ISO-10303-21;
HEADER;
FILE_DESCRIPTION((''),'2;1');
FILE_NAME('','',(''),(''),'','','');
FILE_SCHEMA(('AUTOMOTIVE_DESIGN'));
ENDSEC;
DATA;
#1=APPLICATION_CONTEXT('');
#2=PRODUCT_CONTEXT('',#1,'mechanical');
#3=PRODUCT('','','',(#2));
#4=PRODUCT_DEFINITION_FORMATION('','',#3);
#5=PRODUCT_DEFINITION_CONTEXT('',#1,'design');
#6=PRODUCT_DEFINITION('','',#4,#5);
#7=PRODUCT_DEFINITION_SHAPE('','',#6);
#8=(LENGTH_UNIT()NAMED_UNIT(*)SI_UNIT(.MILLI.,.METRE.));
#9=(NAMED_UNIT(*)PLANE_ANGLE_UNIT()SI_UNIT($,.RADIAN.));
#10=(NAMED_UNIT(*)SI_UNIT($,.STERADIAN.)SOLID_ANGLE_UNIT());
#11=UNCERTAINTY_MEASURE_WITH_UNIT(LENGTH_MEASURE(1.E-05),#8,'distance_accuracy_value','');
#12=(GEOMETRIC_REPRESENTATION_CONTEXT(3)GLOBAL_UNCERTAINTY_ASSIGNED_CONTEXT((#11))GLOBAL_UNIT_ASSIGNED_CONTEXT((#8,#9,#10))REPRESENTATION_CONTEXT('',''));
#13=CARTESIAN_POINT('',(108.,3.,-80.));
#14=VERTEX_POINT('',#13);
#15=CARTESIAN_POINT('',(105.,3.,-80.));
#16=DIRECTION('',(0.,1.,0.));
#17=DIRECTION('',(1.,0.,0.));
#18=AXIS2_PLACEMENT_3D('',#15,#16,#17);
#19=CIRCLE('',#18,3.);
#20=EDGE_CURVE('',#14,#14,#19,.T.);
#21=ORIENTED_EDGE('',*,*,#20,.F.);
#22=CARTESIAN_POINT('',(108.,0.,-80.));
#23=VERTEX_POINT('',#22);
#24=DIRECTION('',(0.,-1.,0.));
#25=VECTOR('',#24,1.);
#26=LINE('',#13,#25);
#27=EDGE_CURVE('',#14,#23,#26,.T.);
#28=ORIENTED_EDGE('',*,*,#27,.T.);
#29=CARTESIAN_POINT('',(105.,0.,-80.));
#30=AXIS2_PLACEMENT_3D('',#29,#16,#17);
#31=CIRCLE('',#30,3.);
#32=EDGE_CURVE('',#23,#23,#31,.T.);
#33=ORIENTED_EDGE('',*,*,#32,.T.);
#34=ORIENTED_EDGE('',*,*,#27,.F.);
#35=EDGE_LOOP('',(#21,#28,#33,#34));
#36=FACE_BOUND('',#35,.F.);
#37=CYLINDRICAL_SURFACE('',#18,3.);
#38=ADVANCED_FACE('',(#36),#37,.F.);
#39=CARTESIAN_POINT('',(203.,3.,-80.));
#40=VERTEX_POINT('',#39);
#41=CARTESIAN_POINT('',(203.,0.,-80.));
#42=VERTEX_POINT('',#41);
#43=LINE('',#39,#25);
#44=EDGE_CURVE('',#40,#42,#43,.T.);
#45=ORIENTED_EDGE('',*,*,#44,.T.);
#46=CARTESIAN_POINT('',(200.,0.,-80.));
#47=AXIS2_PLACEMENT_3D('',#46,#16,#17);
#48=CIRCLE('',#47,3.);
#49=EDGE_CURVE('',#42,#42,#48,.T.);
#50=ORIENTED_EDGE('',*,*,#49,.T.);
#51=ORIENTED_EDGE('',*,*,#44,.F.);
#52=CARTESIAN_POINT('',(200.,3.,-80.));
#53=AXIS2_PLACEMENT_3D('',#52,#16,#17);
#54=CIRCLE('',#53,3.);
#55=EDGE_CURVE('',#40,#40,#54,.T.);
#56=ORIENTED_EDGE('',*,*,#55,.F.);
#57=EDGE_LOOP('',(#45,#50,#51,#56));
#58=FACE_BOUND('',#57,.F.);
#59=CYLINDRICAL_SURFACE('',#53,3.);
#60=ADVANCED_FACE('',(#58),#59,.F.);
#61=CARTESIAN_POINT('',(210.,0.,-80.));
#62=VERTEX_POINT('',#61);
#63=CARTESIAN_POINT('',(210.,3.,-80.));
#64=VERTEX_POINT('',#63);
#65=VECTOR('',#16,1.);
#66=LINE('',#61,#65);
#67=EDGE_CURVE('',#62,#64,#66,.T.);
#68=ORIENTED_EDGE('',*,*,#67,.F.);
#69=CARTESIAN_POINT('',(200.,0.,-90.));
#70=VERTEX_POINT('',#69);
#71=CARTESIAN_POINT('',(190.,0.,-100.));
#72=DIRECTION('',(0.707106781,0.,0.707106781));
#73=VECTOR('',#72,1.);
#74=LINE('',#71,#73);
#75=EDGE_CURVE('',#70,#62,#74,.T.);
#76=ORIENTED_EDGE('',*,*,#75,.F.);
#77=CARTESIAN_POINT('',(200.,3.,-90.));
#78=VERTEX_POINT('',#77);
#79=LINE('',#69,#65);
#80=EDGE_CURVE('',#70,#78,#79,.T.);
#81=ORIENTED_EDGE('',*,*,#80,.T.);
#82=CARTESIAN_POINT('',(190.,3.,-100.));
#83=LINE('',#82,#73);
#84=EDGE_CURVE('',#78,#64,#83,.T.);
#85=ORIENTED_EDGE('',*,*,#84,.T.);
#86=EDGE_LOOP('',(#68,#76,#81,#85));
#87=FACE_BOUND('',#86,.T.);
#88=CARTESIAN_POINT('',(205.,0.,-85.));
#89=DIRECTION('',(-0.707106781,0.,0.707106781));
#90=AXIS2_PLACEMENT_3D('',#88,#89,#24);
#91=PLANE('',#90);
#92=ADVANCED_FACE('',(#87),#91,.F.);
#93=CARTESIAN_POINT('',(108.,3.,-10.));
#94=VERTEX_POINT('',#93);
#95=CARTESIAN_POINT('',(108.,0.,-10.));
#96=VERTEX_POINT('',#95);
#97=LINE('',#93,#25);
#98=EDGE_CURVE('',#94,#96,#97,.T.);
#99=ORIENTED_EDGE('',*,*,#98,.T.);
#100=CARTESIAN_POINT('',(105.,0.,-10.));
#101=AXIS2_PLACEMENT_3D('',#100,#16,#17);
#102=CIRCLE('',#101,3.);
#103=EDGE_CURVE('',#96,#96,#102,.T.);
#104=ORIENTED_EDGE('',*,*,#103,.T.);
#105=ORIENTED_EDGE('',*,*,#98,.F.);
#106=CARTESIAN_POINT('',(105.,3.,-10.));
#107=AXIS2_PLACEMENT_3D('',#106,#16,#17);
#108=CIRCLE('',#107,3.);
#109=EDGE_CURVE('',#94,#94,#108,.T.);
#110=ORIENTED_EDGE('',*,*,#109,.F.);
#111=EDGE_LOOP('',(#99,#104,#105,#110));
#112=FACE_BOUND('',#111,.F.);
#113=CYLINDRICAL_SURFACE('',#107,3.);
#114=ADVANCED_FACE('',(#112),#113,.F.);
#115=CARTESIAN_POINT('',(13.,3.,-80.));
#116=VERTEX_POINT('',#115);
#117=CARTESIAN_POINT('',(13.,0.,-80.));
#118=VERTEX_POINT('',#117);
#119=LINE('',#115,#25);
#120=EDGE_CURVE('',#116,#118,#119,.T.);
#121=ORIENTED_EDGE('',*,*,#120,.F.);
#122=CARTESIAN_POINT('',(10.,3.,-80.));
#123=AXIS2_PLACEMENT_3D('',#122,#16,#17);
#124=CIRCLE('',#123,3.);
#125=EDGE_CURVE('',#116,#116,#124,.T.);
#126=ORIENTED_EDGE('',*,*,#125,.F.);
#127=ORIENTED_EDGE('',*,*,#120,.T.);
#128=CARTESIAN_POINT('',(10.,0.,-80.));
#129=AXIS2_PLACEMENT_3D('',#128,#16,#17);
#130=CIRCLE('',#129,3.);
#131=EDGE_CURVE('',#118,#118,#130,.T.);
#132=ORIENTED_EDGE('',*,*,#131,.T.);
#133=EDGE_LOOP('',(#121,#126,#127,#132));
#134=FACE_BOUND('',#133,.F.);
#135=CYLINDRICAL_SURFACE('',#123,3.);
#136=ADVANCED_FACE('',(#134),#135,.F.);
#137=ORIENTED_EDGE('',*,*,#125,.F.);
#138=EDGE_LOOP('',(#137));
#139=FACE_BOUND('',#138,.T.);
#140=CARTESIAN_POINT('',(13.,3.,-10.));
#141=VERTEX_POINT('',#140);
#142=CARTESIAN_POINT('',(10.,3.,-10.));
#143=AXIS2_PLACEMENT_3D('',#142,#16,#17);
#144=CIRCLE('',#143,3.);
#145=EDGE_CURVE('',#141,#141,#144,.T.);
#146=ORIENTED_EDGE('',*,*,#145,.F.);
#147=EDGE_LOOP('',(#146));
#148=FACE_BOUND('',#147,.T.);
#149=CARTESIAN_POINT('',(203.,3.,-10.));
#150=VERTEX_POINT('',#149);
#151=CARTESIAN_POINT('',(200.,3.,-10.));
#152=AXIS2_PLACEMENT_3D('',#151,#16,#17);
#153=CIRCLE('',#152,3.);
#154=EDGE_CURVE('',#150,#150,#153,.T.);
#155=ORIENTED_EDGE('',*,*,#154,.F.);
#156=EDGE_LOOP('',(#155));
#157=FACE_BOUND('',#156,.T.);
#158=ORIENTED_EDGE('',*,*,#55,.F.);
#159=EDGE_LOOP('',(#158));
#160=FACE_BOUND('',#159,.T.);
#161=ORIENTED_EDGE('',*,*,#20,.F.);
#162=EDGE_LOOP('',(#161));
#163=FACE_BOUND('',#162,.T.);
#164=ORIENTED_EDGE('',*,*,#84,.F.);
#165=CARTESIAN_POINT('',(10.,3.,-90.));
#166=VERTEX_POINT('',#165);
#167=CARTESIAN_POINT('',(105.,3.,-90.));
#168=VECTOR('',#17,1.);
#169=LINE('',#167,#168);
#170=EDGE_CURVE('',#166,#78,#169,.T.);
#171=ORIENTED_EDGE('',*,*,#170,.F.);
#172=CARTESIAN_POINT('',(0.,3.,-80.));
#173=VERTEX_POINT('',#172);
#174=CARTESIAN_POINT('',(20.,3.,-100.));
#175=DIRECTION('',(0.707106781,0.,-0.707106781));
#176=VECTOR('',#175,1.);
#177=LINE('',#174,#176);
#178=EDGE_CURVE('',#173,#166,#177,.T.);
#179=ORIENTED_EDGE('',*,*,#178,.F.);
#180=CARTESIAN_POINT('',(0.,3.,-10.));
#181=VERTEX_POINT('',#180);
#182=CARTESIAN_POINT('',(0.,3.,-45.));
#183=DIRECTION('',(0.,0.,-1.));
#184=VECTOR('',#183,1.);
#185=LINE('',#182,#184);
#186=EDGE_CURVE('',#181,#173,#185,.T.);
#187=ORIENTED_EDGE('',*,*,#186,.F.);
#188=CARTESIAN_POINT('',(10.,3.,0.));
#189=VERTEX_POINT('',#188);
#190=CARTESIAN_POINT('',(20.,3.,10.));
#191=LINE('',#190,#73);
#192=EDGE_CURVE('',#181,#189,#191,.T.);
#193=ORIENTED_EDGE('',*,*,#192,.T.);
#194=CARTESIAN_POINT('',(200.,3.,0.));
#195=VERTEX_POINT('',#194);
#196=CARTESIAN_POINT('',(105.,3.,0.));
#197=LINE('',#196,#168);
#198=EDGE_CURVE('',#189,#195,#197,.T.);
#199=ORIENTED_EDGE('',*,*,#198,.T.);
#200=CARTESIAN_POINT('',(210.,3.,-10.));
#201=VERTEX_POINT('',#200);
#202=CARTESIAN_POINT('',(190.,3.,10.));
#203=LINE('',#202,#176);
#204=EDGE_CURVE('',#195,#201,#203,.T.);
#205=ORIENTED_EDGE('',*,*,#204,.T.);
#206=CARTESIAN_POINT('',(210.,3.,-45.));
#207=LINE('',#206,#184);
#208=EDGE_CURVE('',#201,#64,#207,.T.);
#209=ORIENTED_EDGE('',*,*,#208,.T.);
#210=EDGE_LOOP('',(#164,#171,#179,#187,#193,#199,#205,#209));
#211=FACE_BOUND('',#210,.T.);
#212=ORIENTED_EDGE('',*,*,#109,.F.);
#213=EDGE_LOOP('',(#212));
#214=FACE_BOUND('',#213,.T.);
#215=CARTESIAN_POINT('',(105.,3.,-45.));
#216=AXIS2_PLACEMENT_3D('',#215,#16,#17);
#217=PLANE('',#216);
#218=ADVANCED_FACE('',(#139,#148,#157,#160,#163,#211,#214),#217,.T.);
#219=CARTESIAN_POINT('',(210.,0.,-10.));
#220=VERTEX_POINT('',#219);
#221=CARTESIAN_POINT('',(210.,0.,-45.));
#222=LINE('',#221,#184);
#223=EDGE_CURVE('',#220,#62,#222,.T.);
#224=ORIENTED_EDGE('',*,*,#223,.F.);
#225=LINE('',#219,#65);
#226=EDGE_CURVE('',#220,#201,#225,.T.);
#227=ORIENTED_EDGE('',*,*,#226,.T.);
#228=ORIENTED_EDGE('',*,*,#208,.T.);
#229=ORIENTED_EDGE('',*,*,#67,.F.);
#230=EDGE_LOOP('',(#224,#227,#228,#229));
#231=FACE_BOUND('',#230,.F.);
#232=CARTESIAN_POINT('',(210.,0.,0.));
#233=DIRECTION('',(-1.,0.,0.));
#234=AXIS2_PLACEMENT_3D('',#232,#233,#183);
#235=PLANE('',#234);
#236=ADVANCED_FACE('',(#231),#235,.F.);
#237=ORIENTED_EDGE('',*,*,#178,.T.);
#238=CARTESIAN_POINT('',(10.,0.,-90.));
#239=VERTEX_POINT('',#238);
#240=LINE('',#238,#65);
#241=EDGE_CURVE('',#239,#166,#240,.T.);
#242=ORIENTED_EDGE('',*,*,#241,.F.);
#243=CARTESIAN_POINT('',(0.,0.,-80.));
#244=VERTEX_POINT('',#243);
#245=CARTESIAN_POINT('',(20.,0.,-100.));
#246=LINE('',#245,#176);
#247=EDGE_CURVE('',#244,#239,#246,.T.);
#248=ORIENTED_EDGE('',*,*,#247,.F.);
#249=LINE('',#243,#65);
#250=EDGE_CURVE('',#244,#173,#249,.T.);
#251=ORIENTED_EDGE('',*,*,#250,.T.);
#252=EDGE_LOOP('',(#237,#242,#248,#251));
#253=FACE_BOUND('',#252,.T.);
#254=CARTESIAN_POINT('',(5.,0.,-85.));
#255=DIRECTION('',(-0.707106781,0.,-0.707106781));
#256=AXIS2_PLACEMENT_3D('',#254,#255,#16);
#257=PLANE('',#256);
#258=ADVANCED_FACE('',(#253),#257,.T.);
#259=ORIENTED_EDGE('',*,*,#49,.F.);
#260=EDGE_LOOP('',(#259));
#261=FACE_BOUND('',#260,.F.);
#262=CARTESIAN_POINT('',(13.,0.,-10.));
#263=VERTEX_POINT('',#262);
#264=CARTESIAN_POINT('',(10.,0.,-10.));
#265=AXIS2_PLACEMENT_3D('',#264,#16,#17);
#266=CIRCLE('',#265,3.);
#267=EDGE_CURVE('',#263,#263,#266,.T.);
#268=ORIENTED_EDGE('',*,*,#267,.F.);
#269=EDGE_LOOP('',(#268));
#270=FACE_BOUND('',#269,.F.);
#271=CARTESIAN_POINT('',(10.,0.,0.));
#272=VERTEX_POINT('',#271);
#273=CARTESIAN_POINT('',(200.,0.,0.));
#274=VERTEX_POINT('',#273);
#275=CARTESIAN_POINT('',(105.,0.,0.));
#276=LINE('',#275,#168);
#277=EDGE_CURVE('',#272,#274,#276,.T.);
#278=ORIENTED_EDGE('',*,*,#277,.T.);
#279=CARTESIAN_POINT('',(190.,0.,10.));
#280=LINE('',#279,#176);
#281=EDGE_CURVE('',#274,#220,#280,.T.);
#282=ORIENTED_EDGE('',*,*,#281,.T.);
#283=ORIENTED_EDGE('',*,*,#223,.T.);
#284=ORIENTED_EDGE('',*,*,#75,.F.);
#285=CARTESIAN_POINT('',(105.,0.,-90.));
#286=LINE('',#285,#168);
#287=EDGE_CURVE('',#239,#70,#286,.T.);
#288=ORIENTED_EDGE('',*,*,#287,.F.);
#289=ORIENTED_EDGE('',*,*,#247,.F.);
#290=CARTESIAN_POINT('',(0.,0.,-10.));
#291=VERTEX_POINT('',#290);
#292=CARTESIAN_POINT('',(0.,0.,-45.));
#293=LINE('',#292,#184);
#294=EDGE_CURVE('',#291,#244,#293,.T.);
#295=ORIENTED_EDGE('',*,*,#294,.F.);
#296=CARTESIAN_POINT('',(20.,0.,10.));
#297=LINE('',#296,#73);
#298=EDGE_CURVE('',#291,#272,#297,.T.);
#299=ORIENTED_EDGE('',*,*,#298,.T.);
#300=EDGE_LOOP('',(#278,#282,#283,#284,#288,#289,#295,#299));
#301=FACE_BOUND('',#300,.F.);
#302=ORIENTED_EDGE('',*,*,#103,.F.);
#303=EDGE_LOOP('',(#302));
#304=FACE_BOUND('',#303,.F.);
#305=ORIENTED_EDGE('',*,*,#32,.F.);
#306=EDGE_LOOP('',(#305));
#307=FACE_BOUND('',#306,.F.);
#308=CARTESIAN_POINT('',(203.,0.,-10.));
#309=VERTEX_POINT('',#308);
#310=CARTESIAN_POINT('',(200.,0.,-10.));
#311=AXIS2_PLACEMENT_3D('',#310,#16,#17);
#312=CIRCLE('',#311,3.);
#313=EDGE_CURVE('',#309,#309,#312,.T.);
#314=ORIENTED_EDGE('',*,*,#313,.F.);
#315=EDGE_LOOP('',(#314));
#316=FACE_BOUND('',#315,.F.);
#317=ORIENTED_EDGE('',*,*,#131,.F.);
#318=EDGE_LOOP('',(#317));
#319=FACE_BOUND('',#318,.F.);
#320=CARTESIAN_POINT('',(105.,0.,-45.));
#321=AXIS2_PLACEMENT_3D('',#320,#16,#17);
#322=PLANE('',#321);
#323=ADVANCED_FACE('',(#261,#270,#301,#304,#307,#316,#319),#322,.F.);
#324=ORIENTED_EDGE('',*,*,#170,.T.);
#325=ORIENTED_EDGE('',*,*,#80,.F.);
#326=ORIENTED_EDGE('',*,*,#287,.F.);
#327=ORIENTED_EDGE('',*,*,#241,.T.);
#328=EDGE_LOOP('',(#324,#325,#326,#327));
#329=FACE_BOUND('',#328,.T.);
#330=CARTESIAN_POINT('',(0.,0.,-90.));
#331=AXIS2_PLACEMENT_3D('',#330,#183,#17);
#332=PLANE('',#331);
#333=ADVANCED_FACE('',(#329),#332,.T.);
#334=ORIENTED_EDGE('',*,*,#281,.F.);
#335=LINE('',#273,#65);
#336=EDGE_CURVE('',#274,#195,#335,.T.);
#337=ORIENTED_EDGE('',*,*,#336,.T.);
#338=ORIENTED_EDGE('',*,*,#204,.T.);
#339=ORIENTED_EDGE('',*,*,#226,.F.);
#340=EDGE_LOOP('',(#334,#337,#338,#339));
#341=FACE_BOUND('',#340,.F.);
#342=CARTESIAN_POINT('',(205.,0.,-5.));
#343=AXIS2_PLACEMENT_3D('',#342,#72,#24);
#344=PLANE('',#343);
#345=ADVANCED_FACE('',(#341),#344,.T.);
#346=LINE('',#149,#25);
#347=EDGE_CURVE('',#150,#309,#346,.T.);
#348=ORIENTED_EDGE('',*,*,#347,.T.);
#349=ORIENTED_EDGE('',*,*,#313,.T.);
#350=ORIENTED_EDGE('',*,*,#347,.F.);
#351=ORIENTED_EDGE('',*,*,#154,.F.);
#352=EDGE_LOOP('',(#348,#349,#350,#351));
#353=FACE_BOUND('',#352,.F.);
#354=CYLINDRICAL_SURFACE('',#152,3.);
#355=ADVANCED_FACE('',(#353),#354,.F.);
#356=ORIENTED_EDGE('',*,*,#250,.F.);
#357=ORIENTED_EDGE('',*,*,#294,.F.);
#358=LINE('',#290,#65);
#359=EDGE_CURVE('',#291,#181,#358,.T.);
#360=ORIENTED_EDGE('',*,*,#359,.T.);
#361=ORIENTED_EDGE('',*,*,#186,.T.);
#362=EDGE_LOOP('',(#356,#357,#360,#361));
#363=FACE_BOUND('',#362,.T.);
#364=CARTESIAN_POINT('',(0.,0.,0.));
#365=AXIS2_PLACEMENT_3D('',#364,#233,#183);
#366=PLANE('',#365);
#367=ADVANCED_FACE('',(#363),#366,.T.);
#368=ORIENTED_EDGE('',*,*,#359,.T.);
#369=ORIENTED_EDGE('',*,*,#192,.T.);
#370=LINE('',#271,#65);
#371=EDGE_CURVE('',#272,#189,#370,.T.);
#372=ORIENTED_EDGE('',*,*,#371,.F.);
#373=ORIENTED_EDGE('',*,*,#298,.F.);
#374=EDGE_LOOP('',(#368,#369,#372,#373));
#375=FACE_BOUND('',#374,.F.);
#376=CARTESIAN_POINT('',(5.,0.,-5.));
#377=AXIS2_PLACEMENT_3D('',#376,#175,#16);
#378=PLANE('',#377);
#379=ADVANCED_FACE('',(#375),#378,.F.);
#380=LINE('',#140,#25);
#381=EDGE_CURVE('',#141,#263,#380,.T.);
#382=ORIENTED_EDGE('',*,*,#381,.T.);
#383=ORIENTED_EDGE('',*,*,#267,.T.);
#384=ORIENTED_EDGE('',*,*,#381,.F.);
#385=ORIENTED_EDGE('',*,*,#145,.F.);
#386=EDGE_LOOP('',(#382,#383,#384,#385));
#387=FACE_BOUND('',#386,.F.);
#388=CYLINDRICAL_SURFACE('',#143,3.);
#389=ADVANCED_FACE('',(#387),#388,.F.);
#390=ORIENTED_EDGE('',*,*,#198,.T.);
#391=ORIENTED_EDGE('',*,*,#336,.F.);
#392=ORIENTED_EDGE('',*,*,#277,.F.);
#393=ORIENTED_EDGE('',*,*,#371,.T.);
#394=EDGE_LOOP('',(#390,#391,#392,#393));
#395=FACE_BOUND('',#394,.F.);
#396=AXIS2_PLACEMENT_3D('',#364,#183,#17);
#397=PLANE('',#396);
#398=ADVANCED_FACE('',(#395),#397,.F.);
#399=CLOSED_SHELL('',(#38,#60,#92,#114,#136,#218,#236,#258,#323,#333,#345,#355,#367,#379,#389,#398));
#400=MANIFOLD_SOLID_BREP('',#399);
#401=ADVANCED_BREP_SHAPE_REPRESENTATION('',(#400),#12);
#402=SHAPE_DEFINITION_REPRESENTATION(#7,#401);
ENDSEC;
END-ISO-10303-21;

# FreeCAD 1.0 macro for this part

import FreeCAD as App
import Part
import Sketcher
from FreeCAD import Vector


def edges_at(feature, points):
    """Names of the edges that pass closest to the given points."""
    edges = feature.Shape.Edges
    near = lambda p: min(range(len(edges)), key=lambda i: edges[i].distToShape(Part.Vertex(*p))[0])
    return sorted({f"Edge{near(p) + 1}" for p in points})


def add_polygon(sketch, points):
    """Adds a closed chain of lines whose ends are joined by coincident constraints."""
    first, n = sketch.GeometryCount, len(points)
    for a, b in zip(points, points[1:] + points[:1]):
        sketch.addGeometry(Part.LineSegment(App.Vector(*a, 0), App.Vector(*b, 0)), False)
    for i in range(n):
        sketch.addConstraint(Sketcher.Constraint("Coincident", first + i, 2, first + (i + 1) % n, 1))

doc = App.newDocument("Part")
body = doc.addObject("PartDesign::Body", "Body")

# Sketch on XZ plane
sketch1 = body.newObject("Sketcher::SketchObject", "Sketch")
sketch1.AttachmentSupport = (doc.getObject("XZ_Plane"), [""])
sketch1.MapMode = "FlatFace"
add_polygon(sketch1, [(0, -90), (0, 0), (210, 0), (210, -90)])  # lines 0-3
sketch1.addConstraint([
    Sketcher.Constraint("Vertical", 0),
    Sketcher.Constraint("Horizontal", 1),
    Sketcher.Constraint("Vertical", 2),
    Sketcher.Constraint("Horizontal", 3),
    Sketcher.Constraint("Coincident", 0, 2, -1, 1),
    Sketcher.Constraint("DistanceX", 1, 1, 1, 2, 210.0),
    Sketcher.Constraint("DistanceY", 0, 1, 0, 2, 90.0),
])
pad1 = body.newObject("PartDesign::Pad", "Pad")
pad1.Profile = sketch1
pad1.Length = 3
pad1.Reversed = True

# Sketch on XZ plane
sketch2 = body.newObject("Sketcher::SketchObject", "Sketch001")
sketch2.AttachmentSupport = (doc.getObject("XZ_Plane"), [""])
sketch2.MapMode = "FlatFace"
sketch2.AttachmentOffset = App.Placement(Vector(0, 0, -3), App.Rotation())
sketch2.addGeometry([
    Part.Circle(Vector(10, -80, 0), Vector(0, 0, 1), 3),  # 0
    Part.Circle(Vector(105, -80, 0), Vector(0, 0, 1), 3),  # 1
    Part.Circle(Vector(200, -80, 0), Vector(0, 0, 1), 3),  # 2
    Part.Circle(Vector(200, -10, 0), Vector(0, 0, 1), 3),  # 3
    Part.Circle(Vector(105, -10, 0), Vector(0, 0, 1), 3),  # 4
    Part.Circle(Vector(10, -10, 0), Vector(0, 0, 1), 3),  # 5
], False)
sketch2.addConstraint([
    Sketcher.Constraint("Equal", 0, 1),
    Sketcher.Constraint("Equal", 1, 2),
    Sketcher.Constraint("Equal", 2, 3),
    Sketcher.Constraint("Equal", 3, 4),
    Sketcher.Constraint("Equal", 4, 5),
    Sketcher.Constraint("Horizontal", 0, 3, 1, 3),
    Sketcher.Constraint("Horizontal", 1, 3, 2, 3),
    Sketcher.Constraint("Horizontal", 3, 3, 4, 3),
    Sketcher.Constraint("Horizontal", 4, 3, 5, 3),
    Sketcher.Constraint("Vertical", 2, 3, 3, 3),
    Sketcher.Constraint("Vertical", 1, 3, 4, 3),
    Sketcher.Constraint("Vertical", 0, 3, 5, 3),
    Sketcher.Constraint("Diameter", 0, 6.0),
    Sketcher.Constraint("DistanceX", -1, 1, 0, 3, 10.0),
    Sketcher.Constraint("DistanceY", 0, 3, -1, 1, 80.0),
    Sketcher.Constraint("DistanceX", -1, 1, 1, 3, 105.0),
    Sketcher.Constraint("DistanceX", -1, 1, 2, 3, 200.0),
    Sketcher.Constraint("DistanceY", 3, 3, -1, 1, 10.0),
])
pocket1 = body.newObject("PartDesign::Pocket", "Pocket")
pocket1.Profile = sketch2
pocket1.Length = 3
pocket1.Reversed = True
doc.recompute()

chamfer = body.newObject("PartDesign::Chamfer", "Chamfer")
chamfer.Base = (pocket1, edges_at(pocket1, [
    (210, 1.5, 0),
    (0, 1.5, 0),
    (0, 1.5, -90),
    (210, 1.5, -90),
]))
chamfer.Size = 10

doc.recompute()
